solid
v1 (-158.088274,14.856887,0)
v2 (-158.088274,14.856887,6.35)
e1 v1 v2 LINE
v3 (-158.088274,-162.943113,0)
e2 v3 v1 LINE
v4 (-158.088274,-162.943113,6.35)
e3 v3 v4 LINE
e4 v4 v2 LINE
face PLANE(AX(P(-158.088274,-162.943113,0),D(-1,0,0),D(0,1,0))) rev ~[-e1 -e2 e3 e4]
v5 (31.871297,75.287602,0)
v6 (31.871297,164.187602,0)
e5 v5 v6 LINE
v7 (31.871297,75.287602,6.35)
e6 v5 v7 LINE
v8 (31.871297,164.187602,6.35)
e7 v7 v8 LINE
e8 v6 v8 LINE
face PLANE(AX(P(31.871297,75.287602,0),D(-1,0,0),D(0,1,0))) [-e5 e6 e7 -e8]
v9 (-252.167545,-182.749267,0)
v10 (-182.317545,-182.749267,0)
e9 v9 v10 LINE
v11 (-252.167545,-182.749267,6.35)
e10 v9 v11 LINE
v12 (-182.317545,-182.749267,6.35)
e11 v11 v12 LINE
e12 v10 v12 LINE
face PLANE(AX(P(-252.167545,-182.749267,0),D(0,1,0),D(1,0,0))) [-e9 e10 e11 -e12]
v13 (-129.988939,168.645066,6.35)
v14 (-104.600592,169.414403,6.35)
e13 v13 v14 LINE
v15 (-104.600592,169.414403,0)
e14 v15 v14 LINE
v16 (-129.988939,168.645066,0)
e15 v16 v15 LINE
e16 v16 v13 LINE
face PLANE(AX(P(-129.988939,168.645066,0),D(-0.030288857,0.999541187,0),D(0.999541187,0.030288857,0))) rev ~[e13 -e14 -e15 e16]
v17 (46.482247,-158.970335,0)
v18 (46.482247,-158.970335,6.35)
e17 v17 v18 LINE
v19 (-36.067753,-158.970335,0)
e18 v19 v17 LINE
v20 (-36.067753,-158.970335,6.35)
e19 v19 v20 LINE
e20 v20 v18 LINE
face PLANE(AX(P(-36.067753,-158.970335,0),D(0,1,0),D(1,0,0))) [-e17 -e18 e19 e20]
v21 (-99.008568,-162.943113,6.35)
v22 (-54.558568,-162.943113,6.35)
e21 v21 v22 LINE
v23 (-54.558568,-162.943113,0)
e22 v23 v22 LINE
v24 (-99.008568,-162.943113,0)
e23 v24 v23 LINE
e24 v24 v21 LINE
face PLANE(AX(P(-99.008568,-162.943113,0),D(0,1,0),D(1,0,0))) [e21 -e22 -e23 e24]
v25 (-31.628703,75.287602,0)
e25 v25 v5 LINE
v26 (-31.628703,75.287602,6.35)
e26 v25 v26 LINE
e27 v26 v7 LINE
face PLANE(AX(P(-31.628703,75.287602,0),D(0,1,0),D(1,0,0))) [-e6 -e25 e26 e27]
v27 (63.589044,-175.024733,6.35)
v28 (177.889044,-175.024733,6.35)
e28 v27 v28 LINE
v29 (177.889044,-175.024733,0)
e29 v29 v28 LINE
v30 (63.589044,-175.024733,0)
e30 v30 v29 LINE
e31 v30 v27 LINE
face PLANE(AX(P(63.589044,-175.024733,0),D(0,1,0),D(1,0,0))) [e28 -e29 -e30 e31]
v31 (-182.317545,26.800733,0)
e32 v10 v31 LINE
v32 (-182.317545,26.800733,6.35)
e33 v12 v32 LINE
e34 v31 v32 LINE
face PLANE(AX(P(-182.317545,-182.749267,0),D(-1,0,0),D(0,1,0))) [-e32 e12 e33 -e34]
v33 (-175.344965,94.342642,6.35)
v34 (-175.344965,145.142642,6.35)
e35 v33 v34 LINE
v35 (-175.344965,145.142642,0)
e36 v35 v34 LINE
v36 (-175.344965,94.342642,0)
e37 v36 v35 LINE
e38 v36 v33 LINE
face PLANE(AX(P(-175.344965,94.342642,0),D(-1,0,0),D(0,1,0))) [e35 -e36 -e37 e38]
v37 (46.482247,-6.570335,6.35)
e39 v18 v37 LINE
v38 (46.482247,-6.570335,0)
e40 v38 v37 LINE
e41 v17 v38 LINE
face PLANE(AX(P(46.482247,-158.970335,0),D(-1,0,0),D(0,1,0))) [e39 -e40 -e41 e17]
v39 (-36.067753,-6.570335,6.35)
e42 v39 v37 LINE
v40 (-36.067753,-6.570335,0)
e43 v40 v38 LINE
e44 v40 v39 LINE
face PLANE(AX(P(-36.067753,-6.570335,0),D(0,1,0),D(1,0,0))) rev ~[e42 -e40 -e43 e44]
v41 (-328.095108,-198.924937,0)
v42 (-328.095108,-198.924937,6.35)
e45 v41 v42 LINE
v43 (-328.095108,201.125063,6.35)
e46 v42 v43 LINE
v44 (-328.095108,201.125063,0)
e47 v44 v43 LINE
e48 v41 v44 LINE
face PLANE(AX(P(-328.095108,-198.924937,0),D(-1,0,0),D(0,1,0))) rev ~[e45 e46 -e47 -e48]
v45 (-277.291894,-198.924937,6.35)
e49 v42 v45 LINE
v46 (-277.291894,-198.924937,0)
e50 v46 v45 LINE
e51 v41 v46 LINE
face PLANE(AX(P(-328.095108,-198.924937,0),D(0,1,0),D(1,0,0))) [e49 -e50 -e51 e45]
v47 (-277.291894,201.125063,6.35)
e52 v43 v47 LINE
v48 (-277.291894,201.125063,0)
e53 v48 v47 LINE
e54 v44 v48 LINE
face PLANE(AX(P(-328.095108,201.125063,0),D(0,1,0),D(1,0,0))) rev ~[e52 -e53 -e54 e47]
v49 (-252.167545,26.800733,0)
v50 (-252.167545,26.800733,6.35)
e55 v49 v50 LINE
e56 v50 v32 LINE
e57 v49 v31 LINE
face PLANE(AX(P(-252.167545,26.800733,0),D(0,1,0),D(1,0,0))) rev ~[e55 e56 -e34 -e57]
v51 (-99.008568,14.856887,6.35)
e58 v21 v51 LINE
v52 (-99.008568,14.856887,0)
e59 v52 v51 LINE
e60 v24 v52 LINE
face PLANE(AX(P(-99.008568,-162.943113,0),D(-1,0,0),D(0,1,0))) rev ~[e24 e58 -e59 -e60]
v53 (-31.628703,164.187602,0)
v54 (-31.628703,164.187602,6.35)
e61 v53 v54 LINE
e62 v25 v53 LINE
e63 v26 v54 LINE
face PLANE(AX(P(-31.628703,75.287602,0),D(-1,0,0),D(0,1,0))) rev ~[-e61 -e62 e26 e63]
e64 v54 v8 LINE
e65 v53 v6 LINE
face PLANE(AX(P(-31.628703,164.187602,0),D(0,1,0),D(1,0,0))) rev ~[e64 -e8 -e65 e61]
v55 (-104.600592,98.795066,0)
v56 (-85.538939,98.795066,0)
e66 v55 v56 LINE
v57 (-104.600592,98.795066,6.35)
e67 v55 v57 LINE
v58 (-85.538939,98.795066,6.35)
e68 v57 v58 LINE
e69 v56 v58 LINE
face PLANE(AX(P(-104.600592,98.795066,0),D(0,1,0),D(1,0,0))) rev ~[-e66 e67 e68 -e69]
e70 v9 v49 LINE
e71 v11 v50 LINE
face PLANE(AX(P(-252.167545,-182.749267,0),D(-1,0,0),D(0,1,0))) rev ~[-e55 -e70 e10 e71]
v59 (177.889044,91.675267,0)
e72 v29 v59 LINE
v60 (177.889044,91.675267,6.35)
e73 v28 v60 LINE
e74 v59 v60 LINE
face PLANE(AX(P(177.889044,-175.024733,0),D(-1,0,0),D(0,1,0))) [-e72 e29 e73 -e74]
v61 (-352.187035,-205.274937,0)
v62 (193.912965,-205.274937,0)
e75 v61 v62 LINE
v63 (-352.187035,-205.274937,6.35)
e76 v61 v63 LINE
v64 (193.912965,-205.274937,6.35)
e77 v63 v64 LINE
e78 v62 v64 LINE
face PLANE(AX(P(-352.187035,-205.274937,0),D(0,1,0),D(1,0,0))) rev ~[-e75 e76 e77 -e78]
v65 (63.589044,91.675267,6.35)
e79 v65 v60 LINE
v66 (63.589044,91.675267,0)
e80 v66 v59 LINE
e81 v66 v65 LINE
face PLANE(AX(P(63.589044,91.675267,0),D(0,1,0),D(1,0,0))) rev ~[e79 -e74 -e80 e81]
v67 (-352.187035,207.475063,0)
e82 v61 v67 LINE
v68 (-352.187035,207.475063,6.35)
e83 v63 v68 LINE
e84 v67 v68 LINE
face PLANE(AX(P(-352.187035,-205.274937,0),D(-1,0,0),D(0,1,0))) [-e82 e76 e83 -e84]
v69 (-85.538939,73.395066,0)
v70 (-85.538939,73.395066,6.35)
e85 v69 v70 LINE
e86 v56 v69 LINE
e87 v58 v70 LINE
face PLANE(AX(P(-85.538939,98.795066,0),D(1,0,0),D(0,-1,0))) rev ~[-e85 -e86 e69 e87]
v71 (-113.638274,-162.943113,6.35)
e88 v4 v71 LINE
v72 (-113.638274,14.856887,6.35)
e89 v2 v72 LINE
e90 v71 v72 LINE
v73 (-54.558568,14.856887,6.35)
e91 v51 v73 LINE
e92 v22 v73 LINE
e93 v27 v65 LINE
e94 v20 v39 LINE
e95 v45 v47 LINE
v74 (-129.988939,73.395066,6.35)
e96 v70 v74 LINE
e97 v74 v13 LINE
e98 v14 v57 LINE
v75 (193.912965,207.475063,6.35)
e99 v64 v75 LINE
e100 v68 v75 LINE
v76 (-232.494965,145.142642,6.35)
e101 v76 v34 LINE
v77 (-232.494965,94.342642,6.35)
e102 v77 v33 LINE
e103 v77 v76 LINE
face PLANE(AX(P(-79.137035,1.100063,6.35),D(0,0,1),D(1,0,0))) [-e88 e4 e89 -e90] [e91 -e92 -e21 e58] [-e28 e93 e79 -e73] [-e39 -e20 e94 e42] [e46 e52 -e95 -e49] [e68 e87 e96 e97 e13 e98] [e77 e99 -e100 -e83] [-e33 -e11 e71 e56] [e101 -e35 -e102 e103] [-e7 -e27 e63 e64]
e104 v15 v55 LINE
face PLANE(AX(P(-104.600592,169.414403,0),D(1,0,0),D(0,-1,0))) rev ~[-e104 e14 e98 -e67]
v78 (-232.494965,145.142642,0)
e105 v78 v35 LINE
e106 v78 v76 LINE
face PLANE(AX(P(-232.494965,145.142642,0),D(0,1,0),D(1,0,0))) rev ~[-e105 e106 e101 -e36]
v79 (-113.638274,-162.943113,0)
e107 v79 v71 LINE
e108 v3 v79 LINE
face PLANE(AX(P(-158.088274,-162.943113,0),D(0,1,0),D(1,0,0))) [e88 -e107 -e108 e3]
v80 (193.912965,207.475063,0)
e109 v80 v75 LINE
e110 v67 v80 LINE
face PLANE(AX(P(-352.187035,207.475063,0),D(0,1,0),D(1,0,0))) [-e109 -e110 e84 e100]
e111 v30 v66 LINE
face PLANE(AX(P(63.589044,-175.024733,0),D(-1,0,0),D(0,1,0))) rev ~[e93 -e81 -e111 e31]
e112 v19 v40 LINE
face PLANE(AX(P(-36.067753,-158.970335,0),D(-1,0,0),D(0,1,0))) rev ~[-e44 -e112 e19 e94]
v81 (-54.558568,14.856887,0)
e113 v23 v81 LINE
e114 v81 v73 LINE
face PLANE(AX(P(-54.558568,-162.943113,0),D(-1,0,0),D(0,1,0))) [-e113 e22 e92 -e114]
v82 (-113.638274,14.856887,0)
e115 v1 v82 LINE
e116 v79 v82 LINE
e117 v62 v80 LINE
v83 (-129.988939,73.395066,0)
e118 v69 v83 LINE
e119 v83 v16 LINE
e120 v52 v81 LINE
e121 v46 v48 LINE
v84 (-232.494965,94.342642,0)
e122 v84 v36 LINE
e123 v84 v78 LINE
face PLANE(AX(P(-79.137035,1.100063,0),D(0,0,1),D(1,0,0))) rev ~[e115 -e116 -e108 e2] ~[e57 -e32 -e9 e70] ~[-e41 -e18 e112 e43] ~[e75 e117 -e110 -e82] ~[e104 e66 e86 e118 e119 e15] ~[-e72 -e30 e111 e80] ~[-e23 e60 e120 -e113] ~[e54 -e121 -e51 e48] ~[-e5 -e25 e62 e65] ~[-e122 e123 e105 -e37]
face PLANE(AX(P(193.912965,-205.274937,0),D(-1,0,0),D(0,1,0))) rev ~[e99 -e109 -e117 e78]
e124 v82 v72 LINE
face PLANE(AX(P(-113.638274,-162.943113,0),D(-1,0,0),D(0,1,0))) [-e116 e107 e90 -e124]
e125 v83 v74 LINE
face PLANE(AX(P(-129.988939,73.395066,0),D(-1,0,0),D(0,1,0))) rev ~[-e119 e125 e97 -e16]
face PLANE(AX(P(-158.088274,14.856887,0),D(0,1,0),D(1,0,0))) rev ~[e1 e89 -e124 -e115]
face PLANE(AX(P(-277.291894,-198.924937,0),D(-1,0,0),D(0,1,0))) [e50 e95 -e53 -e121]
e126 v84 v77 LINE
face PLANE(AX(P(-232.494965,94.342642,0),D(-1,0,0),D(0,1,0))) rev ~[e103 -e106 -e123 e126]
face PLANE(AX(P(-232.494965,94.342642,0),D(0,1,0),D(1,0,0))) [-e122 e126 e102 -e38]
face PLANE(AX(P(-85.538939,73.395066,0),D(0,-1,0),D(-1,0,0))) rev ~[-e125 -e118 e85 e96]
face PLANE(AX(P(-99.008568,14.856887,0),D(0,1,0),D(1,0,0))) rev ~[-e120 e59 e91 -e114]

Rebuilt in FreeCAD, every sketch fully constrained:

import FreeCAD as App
import Part
import Sketcher

V = App.Vector
Q = App.Units.Quantity


def add_polygon(sketch, points):
    """Adds a closed chain of lines whose ends are joined by coincident constraints."""
    first, n = sketch.GeometryCount, len(points)
    for a, b in zip(points, points[1:] + points[:1]):
        sketch.addGeometry(Part.LineSegment(App.Vector(*a, 0), App.Vector(*b, 0)), False)
    for i in range(n):
        sketch.addConstraint(Sketcher.Constraint("Coincident", first + i, 2, first + (i + 1) % n, 1))

doc = App.newDocument("Part")
body = doc.addObject("PartDesign::Body", "Body")

# Sketch on XY plane
sketch1 = body.newObject("Sketcher::SketchObject", "Sketch")
sketch1.AttachmentSupport = (doc.getObject("XY_Plane"), [""])
sketch1.MapMode = "FlatFace"
add_polygon(sketch1, [(-352.187035, 207.475063), (-352.187035, -205.274937), (193.912965, -205.274937), (193.912965, 207.475063)])  # lines 0-3
add_polygon(sketch1, [(-182.317545, -182.749267), (-252.167545, -182.749267), (-252.167545, 26.800733), (-182.317545, 26.800733)])  # lines 4-7
add_polygon(sketch1, [(-277.291894, -198.924937), (-328.095108, -198.924937), (-328.095108, 201.125063), (-277.291894, 201.125063)])  # lines 8-11
add_polygon(sketch1, [(-113.638274, -162.943113), (-158.088274, -162.943113), (-158.088274, 14.856887), (-113.638274, 14.856887)])  # lines 12-15
add_polygon(sketch1, [(-54.558568, -162.943113), (-99.008568, -162.943113), (-99.008568, 14.856887), (-54.558568, 14.856887)])  # lines 16-19
add_polygon(sketch1, [(46.482247, -158.970335), (-36.067753, -158.970335), (-36.067753, -6.570335), (46.482247, -6.570335)])  # lines 20-23
add_polygon(sketch1, [(177.889044, -175.024733), (63.589044, -175.024733), (63.589044, 91.675267), (177.889044, 91.675267)])  # lines 24-27
add_polygon(sketch1, [(-175.344965, 94.342642), (-232.494965, 94.342642), (-232.494965, 145.142642), (-175.344965, 145.142642)])  # lines 28-31
add_polygon(sketch1, [(-85.538939, 73.395066), (-129.988939, 73.395066), (-129.988939, 168.645066), (-104.600592, 169.414403), (-104.600592, 98.795066), (-85.538939, 98.795066)])  # lines 32-37
add_polygon(sketch1, [(31.871297, 75.287602), (-31.628703, 75.287602), (-31.628703, 164.187602), (31.871297, 164.187602)])  # lines 38-41
sketch1.addConstraint([
    Sketcher.Constraint("Vertical", 0),
    Sketcher.Constraint("Horizontal", 1),
    Sketcher.Constraint("Vertical", 2),
    Sketcher.Constraint("Horizontal", 3),
    Sketcher.Constraint("Horizontal", 4),
    Sketcher.Constraint("Vertical", 5),
    Sketcher.Constraint("Horizontal", 6),
    Sketcher.Constraint("Vertical", 7),
    Sketcher.Constraint("Horizontal", 8),
    Sketcher.Constraint("Vertical", 9),
    Sketcher.Constraint("Horizontal", 10),
    Sketcher.Constraint("Vertical", 11),
    Sketcher.Constraint("Horizontal", 12),
    Sketcher.Constraint("Vertical", 13),
    Sketcher.Constraint("Horizontal", 14),
    Sketcher.Constraint("Vertical", 15),
    Sketcher.Constraint("Horizontal", 16),
    Sketcher.Constraint("Vertical", 17),
    Sketcher.Constraint("Horizontal", 18),
    Sketcher.Constraint("Vertical", 19),
    Sketcher.Constraint("Horizontal", 20),
    Sketcher.Constraint("Vertical", 21),
    Sketcher.Constraint("Horizontal", 22),
    Sketcher.Constraint("Vertical", 23),
    Sketcher.Constraint("Horizontal", 24),
    Sketcher.Constraint("Vertical", 25),
    Sketcher.Constraint("Horizontal", 26),
    Sketcher.Constraint("Vertical", 27),
    Sketcher.Constraint("Horizontal", 28),
    Sketcher.Constraint("Vertical", 29),
    Sketcher.Constraint("Horizontal", 30),
    Sketcher.Constraint("Vertical", 31),
    Sketcher.Constraint("Horizontal", 32),
    Sketcher.Constraint("Vertical", 33),
    Sketcher.Constraint("Vertical", 35),
    Sketcher.Constraint("Horizontal", 36),
    Sketcher.Constraint("Vertical", 37),
    Sketcher.Constraint("Horizontal", 38),
    Sketcher.Constraint("Vertical", 39),
    Sketcher.Constraint("Horizontal", 40),
    Sketcher.Constraint("Vertical", 41),
    Sketcher.Constraint("Horizontal", 15, 2, 16, 2),
    Sketcher.Constraint("Horizontal", 14, 2, 17, 2),
    Sketcher.Constraint("Equal", 14, 16),
    Sketcher.Constraint("Equal", 18, 32),
    Sketcher.Constraint("DistanceY", 13, 1, 13, 2, Q("7 in")),
    Sketcher.Constraint("DistanceY", 21, 1, 21, 2, Q("6 in")),
    Sketcher.Constraint("DistanceY", 29, 1, 29, 2, Q("2 in")),
    Sketcher.Constraint("DistanceY", 37, 2, 37, 1, Q("1 in")),
    Sketcher.Constraint("Distance", 34, Q("1 in")),
    Sketcher.Constraint("DistanceX", 1, 1, 1, 2, Q("21.5 in")),
    Sketcher.Constraint("DistanceX", 24, 2, 24, 1, Q("4.5 in")),
    Sketcher.Constraint("DistanceX", 38, 2, 38, 1, Q("2.5 in")),
    Sketcher.Constraint("DistanceY", 25, 1, 25, 2, Q("10.5 in")),
    Sketcher.Constraint("DistanceY", 39, 1, 39, 2, Q("3.5 in")),
    Sketcher.Constraint("DistanceX", 4, 2, 4, 1, Q("2.75 in")),
    Sketcher.Constraint("DistanceX", 12, 2, 12, 1, Q("1.75 in")),
    Sketcher.Constraint("DistanceX", 20, 2, 20, 1, Q("3.25 in")),
    Sketcher.Constraint("DistanceX", 28, 2, 28, 1, Q("2.25 in")),
    Sketcher.Constraint("DistanceY", 0, 2, 0, 1, Q("16.25 in")),
    Sketcher.Constraint("DistanceY", 5, 1, 5, 2, Q("8.25 in")),
    Sketcher.Constraint("DistanceY", 9, 1, 9, 2, Q("15.75 in")),
    Sketcher.Constraint("DistanceY", 33, 1, 33, 2, Q("3.75 in")),
    Sketcher.Constraint("DistanceY", 0, 2, 8, 2, Q("0.25 in")),
    Sketcher.Constraint("DistanceY", -1, 1, 39, 2, 164.187602),
    Sketcher.Constraint("DistanceY", 1, 2, 23, 2, 46.304602),
    Sketcher.Constraint("DistanceY", 27, 2, 22, 2, 168.454398),
    Sketcher.Constraint("DistanceY", 39, 2, 34, 2, 5.226801),
    Sketcher.Constraint("DistanceX", 8, 2, 8, 1, 50.803214),
    Sketcher.Constraint("DistanceX", 36, 1, 36, 2, 19.061653),
    Sketcher.Constraint("DistanceX", 8, 2, -1, 1, 328.095108),
    Sketcher.Constraint("DistanceY", -1, 1, 28, 2, 94.342642),
    Sketcher.Constraint("DistanceX", 32, 2, -1, 1, 129.988939),
    Sketcher.Constraint("DistanceX", 0, 2, 4, 2, 100.01949),
    Sketcher.Constraint("DistanceY", 0, 2, 4, 2, 22.52567),
    Sketcher.Constraint("DistanceX", 3, 2, 10, 2, 74.895141),
    Sketcher.Constraint("DistanceX", 7, 2, 12, 2, 24.229271),
    Sketcher.Constraint("DistanceY", 19, 2, 20, 2, 3.972778),
    Sketcher.Constraint("DistanceX", 15, 2, 20, 2, 77.570521),
    Sketcher.Constraint("DistanceX", 24, 2, 1, 2, 130.323921),
    Sketcher.Constraint("DistanceX", 16, 2, 24, 2, 162.597612),
    Sketcher.Constraint("DistanceX", 5, 2, 28, 2, 19.67258),
    Sketcher.Constraint("DistanceY", 5, 2, 28, 2, 67.541909),
    Sketcher.Constraint("DistanceX", 35, 2, 38, 2, 72.971889),
])
pad1 = body.newObject("PartDesign::Pad", "Pad")
pad1.Profile = sketch1
pad1.Length = Q("0.25 in")

doc.recompute()
